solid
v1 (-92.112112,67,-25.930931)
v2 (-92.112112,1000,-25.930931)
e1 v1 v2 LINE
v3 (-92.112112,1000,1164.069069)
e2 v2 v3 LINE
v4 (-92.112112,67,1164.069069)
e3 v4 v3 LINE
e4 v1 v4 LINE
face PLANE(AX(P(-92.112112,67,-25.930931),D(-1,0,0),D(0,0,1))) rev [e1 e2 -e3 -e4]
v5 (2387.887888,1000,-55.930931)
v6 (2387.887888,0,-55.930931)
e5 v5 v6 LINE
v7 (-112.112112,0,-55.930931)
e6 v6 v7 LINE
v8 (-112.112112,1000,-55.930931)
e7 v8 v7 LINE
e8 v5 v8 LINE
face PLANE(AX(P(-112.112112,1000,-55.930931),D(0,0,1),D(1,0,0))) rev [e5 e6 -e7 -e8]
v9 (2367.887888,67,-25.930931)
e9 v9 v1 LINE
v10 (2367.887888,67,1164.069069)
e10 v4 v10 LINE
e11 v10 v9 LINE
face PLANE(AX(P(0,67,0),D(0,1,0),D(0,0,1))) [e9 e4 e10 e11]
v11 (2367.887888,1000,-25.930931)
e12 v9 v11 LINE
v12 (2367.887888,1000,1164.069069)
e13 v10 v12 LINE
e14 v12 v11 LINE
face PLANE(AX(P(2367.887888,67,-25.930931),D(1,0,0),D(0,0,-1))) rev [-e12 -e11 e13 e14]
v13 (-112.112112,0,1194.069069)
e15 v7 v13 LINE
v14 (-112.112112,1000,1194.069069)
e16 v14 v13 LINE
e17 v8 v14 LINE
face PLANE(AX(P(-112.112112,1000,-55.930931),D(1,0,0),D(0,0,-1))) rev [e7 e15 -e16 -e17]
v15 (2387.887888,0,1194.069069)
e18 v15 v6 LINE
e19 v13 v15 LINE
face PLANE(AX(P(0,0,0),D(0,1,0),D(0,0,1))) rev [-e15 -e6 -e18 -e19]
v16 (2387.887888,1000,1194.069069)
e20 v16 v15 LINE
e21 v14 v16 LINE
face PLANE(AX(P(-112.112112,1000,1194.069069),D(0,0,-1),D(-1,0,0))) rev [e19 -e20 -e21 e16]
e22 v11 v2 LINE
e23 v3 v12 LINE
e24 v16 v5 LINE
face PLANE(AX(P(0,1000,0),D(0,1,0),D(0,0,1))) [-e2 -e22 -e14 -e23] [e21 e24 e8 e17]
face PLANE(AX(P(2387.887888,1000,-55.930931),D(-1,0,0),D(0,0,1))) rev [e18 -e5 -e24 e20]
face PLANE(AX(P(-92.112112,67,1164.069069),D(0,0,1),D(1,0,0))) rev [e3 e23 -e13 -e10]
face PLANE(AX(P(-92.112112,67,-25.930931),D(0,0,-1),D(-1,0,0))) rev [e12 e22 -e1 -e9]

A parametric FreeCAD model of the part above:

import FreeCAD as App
import Part
import Sketcher

V = App.Vector

doc = App.newDocument("Part")
body = doc.addObject("PartDesign::Body", "Body")

sketch1 = body.newObject("Sketcher::SketchObject", "Sketch")
sketch1.AttachmentSupport = (doc.getObject("XZ_Plane"), [""])
sketch1.MapMode = "FlatFace"
sketch1.addGeometry([
    Part.LineSegment(V(-112, -56, 0), V(-112, 1194, 0)),
    Part.LineSegment(V(-112, 1194, 0), V(2388, 1194, 0)),
    Part.LineSegment(V(2388, 1194, 0), V(2388, -56, 0)),
    Part.LineSegment(V(2388, -56, 0), V(-112, -56, 0)),
], False)
sketch1.addConstraint([
    Sketcher.Constraint("Coincident", 0, 2, 1, 1),
    Sketcher.Constraint("Coincident", 1, 2, 2, 1),
    Sketcher.Constraint("Coincident", 2, 2, 3, 1),
    Sketcher.Constraint("Coincident", 3, 2, 0, 1),
    Sketcher.Constraint("Vertical", 0),
    Sketcher.Constraint("Horizontal", 1),
    Sketcher.Constraint("Vertical", 2),
    Sketcher.Constraint("Horizontal", 3),
    Sketcher.Constraint("DistanceX", 1, 1, 1, 2, 2500.0),
    Sketcher.Constraint("DistanceY", 0, 1, 0, 2, 1250.0),
    Sketcher.Constraint("DistanceY", -1, 1, 0, 2, 1194.069069),
    Sketcher.Constraint("DistanceX", 0, 2, -1, 1, 112.112112),
])
pad1 = body.newObject("PartDesign::Pad", "Pad")
pad1.Profile = sketch1
pad1.Length = 1000
pad1.Reversed = True

sketch2 = body.newObject("Sketcher::SketchObject", "Sketch001")
sketch2.AttachmentSupport = (doc.getObject("XZ_Plane"), [""])
sketch2.MapMode = "FlatFace"
sketch2.AttachmentOffset = App.Placement(V(0, 0, -1000), App.Rotation())
sketch2.addGeometry([
    Part.LineSegment(V(-92, -26, 0), V(-92, 1164, 0)),
    Part.LineSegment(V(-92, 1164, 0), V(2368, 1164, 0)),
    Part.LineSegment(V(2368, 1164, 0), V(2368, -26, 0)),
    Part.LineSegment(V(2368, -26, 0), V(-92, -26, 0)),
], False)
sketch2.addConstraint([
    Sketcher.Constraint("Coincident", 0, 2, 1, 1),
    Sketcher.Constraint("Coincident", 1, 2, 2, 1),
    Sketcher.Constraint("Coincident", 2, 2, 3, 1),
    Sketcher.Constraint("Coincident", 3, 2, 0, 1),
    Sketcher.Constraint("Vertical", 0),
    Sketcher.Constraint("Horizontal", 1),
    Sketcher.Constraint("Vertical", 2),
    Sketcher.Constraint("Horizontal", 3),
    Sketcher.Constraint("DistanceX", 1, 1, 1, 2, 2460.0),
    Sketcher.Constraint("DistanceY", 0, 1, 0, 2, 1190.0),
    Sketcher.Constraint("DistanceY", -1, 1, 0, 2, 1164.069069),
    Sketcher.Constraint("DistanceX", 0, 2, -1, 1, 92.112112),
])
pocket1 = body.newObject("PartDesign::Pocket", "Pocket")
pocket1.Profile = sketch2
pocket1.Length = 933
pocket1.Reversed = True

doc.recompute()
